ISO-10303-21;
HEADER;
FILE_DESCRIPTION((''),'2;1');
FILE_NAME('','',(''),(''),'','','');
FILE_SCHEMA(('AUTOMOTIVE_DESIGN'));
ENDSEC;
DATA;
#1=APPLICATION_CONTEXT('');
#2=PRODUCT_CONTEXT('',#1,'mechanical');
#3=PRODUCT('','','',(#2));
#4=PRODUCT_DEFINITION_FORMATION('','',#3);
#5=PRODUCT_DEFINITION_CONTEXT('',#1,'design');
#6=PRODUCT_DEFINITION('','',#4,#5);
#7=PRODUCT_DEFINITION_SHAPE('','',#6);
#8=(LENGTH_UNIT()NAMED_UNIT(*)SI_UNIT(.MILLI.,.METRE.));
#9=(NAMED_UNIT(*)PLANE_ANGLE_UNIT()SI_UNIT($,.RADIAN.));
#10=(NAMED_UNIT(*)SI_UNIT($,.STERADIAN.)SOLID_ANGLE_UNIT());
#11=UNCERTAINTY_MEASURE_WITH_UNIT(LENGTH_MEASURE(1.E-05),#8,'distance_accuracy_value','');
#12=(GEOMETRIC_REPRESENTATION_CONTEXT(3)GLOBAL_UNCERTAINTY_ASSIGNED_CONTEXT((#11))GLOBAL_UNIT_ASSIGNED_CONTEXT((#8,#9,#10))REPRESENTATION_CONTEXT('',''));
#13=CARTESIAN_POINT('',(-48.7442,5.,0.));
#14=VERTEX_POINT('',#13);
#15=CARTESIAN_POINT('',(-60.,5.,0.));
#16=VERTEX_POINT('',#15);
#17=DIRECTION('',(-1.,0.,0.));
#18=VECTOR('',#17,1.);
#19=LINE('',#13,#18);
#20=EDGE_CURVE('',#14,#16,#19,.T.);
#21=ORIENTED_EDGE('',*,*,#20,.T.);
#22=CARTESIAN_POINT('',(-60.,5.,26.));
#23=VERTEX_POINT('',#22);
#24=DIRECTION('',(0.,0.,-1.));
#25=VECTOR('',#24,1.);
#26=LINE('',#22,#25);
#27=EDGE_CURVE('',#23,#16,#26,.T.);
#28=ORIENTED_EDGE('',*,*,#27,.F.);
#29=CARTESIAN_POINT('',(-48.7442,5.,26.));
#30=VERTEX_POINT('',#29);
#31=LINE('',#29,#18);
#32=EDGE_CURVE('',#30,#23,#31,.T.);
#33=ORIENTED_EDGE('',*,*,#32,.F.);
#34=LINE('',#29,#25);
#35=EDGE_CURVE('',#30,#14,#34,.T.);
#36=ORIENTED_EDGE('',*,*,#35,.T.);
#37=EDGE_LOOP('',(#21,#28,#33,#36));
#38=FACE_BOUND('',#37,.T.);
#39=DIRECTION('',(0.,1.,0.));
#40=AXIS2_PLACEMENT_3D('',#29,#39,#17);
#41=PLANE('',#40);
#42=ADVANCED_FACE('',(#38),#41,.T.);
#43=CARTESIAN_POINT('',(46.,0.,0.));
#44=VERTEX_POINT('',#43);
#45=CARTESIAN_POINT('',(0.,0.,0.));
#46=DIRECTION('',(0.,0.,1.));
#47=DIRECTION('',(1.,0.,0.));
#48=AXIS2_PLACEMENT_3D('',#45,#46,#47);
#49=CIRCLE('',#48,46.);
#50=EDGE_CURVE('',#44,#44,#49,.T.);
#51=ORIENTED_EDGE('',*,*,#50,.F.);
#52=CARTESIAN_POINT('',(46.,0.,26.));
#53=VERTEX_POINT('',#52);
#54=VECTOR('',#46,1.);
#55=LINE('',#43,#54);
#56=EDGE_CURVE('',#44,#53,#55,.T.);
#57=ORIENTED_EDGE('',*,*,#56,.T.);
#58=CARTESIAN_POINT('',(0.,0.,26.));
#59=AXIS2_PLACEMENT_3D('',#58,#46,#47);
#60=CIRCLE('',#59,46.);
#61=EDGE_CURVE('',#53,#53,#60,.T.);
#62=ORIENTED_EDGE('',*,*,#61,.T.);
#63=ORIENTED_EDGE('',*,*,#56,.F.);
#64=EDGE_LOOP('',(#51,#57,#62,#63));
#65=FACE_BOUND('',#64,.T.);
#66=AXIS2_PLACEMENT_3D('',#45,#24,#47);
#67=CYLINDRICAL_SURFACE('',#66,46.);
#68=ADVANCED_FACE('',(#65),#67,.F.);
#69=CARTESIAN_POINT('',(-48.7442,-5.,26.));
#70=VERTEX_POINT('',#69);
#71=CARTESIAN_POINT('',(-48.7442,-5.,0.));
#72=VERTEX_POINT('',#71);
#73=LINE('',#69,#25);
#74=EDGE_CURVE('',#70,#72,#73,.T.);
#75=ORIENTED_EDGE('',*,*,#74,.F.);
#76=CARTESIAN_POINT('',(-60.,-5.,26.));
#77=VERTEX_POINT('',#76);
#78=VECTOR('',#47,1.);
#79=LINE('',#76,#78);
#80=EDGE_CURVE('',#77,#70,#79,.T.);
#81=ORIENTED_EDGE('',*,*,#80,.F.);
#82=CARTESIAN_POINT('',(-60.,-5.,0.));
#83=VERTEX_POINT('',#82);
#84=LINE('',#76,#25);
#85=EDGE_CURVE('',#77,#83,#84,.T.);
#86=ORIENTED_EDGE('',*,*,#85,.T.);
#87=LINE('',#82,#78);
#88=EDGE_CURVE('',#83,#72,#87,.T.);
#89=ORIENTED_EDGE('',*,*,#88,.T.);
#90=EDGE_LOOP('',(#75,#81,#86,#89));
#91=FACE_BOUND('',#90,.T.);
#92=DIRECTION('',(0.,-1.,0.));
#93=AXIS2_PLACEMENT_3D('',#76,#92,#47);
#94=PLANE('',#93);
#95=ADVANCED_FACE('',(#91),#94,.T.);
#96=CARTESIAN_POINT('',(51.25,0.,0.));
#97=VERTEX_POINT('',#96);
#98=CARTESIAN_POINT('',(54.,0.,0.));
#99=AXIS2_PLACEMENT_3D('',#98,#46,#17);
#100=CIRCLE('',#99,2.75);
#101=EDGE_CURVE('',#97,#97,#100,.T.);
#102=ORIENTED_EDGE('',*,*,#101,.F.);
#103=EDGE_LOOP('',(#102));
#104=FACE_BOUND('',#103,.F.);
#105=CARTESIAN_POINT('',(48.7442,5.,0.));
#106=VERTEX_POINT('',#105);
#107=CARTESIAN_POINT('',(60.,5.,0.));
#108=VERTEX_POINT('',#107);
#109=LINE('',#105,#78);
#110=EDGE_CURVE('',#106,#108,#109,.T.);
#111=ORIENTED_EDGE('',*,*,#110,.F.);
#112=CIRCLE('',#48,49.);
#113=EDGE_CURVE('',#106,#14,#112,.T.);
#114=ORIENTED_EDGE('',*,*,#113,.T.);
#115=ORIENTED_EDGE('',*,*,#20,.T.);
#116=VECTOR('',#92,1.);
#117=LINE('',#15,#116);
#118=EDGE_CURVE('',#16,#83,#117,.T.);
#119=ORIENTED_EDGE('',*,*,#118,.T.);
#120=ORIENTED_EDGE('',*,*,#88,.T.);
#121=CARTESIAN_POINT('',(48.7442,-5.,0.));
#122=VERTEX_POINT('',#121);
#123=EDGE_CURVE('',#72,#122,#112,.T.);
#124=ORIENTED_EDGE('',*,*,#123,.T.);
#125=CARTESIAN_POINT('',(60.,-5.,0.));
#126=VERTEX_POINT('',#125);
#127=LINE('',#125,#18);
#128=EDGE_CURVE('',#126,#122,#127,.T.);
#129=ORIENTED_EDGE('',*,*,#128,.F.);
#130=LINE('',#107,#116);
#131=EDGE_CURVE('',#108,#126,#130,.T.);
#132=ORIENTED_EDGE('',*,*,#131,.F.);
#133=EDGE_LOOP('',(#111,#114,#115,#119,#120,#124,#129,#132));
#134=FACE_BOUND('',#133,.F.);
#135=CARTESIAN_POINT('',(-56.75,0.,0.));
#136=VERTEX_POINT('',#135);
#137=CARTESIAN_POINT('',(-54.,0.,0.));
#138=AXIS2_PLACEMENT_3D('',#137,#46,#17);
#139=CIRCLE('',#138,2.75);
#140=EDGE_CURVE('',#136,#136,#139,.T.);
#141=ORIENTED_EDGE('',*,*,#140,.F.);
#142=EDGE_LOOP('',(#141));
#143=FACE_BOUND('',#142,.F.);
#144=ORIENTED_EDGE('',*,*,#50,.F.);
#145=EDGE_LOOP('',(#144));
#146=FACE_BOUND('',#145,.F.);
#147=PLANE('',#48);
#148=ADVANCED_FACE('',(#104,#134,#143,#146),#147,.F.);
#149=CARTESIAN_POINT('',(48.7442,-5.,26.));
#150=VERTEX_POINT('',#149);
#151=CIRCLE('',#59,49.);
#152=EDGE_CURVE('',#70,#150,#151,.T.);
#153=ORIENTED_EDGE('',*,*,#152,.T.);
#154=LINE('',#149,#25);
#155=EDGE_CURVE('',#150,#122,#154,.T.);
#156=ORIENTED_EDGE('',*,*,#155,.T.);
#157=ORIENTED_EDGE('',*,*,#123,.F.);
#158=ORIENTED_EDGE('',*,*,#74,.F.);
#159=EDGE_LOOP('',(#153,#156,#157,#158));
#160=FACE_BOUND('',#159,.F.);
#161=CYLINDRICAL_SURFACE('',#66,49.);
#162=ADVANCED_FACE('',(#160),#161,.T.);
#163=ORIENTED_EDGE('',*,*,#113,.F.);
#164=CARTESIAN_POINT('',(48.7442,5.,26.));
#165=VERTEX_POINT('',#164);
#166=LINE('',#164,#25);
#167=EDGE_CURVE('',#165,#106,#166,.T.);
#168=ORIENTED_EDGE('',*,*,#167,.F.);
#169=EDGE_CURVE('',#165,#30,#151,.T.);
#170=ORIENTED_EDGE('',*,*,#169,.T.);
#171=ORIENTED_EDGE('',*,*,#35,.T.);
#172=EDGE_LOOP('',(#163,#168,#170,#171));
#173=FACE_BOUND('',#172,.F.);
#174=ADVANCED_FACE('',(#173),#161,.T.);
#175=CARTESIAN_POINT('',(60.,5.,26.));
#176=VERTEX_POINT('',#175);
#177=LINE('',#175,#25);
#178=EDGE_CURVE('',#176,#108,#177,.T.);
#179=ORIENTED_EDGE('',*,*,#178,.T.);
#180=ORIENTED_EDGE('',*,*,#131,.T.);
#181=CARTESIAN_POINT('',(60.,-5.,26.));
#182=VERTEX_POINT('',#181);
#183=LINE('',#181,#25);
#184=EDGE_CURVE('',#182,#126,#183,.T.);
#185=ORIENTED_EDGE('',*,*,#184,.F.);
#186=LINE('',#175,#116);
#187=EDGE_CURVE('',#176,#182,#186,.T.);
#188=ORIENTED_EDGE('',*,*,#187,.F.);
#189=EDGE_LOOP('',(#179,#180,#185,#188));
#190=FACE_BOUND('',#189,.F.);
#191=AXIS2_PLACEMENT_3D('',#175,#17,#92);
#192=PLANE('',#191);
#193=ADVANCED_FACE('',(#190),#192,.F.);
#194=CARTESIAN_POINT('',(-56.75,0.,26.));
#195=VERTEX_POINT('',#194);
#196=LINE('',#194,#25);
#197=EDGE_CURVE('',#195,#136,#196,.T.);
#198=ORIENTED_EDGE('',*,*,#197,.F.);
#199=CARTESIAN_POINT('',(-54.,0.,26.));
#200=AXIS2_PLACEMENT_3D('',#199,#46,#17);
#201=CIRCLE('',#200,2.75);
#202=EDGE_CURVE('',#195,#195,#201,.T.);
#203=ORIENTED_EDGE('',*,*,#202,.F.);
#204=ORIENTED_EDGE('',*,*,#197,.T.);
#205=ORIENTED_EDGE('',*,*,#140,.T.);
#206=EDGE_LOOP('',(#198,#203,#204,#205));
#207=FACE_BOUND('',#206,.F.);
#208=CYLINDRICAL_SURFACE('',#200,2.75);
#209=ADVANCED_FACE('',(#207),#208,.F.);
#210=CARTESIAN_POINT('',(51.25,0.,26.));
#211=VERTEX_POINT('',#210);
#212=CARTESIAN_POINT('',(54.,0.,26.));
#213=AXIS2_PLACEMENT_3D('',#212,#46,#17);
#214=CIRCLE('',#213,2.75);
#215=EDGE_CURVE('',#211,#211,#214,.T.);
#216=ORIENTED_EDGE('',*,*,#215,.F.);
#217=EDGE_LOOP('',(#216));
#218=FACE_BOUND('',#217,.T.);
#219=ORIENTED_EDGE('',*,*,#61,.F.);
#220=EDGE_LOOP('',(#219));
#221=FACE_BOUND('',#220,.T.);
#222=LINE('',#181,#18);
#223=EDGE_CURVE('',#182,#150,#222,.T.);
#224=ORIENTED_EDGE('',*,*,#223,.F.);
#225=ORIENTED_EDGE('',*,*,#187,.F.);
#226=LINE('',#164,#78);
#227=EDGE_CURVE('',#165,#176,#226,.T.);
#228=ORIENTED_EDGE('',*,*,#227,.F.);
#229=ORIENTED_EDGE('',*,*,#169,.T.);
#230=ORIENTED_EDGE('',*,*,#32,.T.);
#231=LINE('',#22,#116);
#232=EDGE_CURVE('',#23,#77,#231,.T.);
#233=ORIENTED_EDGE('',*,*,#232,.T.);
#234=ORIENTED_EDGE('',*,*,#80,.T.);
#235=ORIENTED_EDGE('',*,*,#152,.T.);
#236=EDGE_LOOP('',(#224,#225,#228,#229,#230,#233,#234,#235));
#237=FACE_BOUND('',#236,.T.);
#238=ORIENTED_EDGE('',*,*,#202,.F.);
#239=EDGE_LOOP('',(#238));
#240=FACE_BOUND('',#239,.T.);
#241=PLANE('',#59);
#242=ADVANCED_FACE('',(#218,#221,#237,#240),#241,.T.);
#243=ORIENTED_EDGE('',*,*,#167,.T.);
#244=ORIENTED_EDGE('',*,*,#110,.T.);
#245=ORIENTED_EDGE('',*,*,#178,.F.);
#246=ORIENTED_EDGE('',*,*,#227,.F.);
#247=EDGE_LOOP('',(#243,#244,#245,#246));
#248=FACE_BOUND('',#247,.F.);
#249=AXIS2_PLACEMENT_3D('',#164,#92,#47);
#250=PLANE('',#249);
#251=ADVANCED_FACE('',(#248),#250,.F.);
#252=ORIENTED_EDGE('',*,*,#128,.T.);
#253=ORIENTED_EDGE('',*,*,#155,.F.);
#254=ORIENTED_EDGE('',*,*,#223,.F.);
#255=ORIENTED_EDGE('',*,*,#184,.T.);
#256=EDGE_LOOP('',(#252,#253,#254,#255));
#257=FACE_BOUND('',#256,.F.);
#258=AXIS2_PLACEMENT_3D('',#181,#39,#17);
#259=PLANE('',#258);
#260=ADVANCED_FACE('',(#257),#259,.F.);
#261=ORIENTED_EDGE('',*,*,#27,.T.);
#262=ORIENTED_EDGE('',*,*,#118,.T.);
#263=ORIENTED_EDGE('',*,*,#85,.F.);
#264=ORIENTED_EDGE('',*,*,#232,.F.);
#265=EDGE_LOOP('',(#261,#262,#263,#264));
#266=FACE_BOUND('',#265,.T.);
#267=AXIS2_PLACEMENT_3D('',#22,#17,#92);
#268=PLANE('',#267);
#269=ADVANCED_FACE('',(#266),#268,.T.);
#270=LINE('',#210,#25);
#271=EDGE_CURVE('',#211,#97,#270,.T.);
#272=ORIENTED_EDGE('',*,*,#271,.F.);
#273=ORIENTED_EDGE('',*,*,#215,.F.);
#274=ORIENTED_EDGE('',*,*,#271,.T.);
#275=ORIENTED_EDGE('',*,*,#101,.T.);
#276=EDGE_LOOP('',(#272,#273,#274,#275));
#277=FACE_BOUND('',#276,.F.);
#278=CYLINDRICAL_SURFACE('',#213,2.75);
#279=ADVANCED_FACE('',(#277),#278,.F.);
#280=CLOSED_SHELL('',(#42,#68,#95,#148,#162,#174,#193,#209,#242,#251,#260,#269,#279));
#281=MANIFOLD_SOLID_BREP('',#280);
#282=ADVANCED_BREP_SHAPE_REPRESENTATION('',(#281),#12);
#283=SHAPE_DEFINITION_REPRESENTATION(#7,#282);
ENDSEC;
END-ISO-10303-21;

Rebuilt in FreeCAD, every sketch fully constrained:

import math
import FreeCAD as App
import Part
import Sketcher

V = App.Vector

doc = App.newDocument("Part")
body = doc.addObject("PartDesign::Body", "Body")

sketch1 = doc.addObject("Sketcher::SketchObject", "Sketch")
body.addObject(sketch1)
sketch1.AttachmentSupport = (doc.XY_Plane, [""])
sketch1.MapMode = "FlatFace"
sketch1.addGeometry(Part.Circle(V(0, 0, 0), V(0, 0, 1), 49), False)
sketch1.addGeometry(Part.Circle(V(0, 0, 0), V(0, 0, 1), 46), False)
sketch1.addConstraint(Sketcher.Constraint("Coincident", 0, 3, -1, 1))
sketch1.addConstraint(Sketcher.Constraint("Coincident", 1, 3, -1, 1))
sketch1.addConstraint(Sketcher.Constraint("Diameter", 1, 92.0))
sketch1.addConstraint(Sketcher.Constraint("Diameter", 0, 98.0))
pad1 = doc.addObject("PartDesign::Pad", "Pad")
body.addObject(pad1)
pad1.Profile = sketch1
pad1.Length = 26

sketch2 = doc.addObject("Sketcher::SketchObject", "Sketch001")
body.addObject(sketch2)
sketch2.AttachmentSupport = (doc.XY_Plane, [""])
sketch2.MapMode = "FlatFace"
sketch2.AttachmentOffset = App.Placement(V(0, 0, 26), App.Rotation())
sketch2.addGeometry(Part.ArcOfCircle(Part.Circle(V(0, 0, 0), V(0, 0, 1), 49), math.radians(174.143294), math.radians(185.856706)), False)
sketch2.addGeometry(Part.LineSegment(V(-48.7442, 5, 0), V(-60, 5, 0)), False)
sketch2.addGeometry(Part.LineSegment(V(-60, 5, 0), V(-60, -5, 0)), False)
sketch2.addGeometry(Part.LineSegment(V(-60, -5, 0), V(-48.7442, -5, 0)), False)
sketch2.addGeometry(Part.Circle(V(-54, 0, 0), V(0, 0, 1), 2.75), False)
sketch2.addGeometry(Part.ArcOfCircle(Part.Circle(V(0, 0, 0), V(0, 0, 1), 49), math.radians(-5.856706), math.radians(5.856706)), False)
sketch2.addGeometry(Part.LineSegment(V(48.7442, -5, 0), V(60, -5, 0)), False)
sketch2.addGeometry(Part.LineSegment(V(60, -5, 0), V(60, 5, 0)), False)
sketch2.addGeometry(Part.LineSegment(V(60, 5, 0), V(48.7442, 5, 0)), False)
sketch2.addGeometry(Part.Circle(V(54, 0, 0), V(0, 0, 1), 2.75), False)
sketch2.addConstraint(Sketcher.Constraint("Coincident", 0, 1, 1, 1))
sketch2.addConstraint(Sketcher.Constraint("Coincident", 1, 2, 2, 1))
sketch2.addConstraint(Sketcher.Constraint("Coincident", 2, 2, 3, 1))
sketch2.addConstraint(Sketcher.Constraint("Coincident", 3, 2, 0, 2))
sketch2.addConstraint(Sketcher.Constraint("Coincident", 5, 1, 6, 1))
sketch2.addConstraint(Sketcher.Constraint("Coincident", 6, 2, 7, 1))
sketch2.addConstraint(Sketcher.Constraint("Coincident", 7, 2, 8, 1))
sketch2.addConstraint(Sketcher.Constraint("Coincident", 8, 2, 5, 2))
sketch2.addConstraint(Sketcher.Constraint("Horizontal", 1))
sketch2.addConstraint(Sketcher.Constraint("Vertical", 2))
sketch2.addConstraint(Sketcher.Constraint("Horizontal", 3))
sketch2.addConstraint(Sketcher.Constraint("Horizontal", 6))
sketch2.addConstraint(Sketcher.Constraint("Vertical", 7))
sketch2.addConstraint(Sketcher.Constraint("Horizontal", 8))
sketch2.addConstraint(Sketcher.Constraint("Coincident", 0, 3, -1, 1))
sketch2.addConstraint(Sketcher.Constraint("Coincident", 5, 3, -1, 1))
sketch2.addConstraint(Sketcher.Constraint("Equal", 0, 5))
sketch2.addConstraint(Sketcher.Constraint("Equal", 4, 9))
sketch2.addConstraint(Sketcher.Constraint("Symmetric", 4, 3, 9, 3, -1, 1))
sketch2.addConstraint(Sketcher.Constraint("Symmetric", 1, 2, 6, 2, -1, 1))
sketch2.addConstraint(Sketcher.Constraint("PointOnObject", 4, 3, -1))
sketch2.addConstraint(Sketcher.Constraint("Horizontal", 3, 2, 5, 1))
sketch2.addConstraint(Sketcher.Constraint("Horizontal", 1, 2, 7, 2))
sketch2.addConstraint(Sketcher.Constraint("Diameter", 4, 5.5))
sketch2.addConstraint(Sketcher.Constraint("DistanceY", 2, 2, 2, 1, 10.0))
sketch2.addConstraint(Sketcher.Constraint("DistanceX", 4, 3, -1, 1, 54.0))
sketch2.addConstraint(Sketcher.Constraint("Radius", 0, 49.0))
sketch2.addConstraint(Sketcher.Constraint("DistanceX", 1, 2, 4, 3, 6.0))
pad2 = doc.addObject("PartDesign::Pad", "Pad001")
body.addObject(pad2)
pad2.Profile = sketch2
pad2.Length = 26
pad2.Reversed = True

doc.recompute()
